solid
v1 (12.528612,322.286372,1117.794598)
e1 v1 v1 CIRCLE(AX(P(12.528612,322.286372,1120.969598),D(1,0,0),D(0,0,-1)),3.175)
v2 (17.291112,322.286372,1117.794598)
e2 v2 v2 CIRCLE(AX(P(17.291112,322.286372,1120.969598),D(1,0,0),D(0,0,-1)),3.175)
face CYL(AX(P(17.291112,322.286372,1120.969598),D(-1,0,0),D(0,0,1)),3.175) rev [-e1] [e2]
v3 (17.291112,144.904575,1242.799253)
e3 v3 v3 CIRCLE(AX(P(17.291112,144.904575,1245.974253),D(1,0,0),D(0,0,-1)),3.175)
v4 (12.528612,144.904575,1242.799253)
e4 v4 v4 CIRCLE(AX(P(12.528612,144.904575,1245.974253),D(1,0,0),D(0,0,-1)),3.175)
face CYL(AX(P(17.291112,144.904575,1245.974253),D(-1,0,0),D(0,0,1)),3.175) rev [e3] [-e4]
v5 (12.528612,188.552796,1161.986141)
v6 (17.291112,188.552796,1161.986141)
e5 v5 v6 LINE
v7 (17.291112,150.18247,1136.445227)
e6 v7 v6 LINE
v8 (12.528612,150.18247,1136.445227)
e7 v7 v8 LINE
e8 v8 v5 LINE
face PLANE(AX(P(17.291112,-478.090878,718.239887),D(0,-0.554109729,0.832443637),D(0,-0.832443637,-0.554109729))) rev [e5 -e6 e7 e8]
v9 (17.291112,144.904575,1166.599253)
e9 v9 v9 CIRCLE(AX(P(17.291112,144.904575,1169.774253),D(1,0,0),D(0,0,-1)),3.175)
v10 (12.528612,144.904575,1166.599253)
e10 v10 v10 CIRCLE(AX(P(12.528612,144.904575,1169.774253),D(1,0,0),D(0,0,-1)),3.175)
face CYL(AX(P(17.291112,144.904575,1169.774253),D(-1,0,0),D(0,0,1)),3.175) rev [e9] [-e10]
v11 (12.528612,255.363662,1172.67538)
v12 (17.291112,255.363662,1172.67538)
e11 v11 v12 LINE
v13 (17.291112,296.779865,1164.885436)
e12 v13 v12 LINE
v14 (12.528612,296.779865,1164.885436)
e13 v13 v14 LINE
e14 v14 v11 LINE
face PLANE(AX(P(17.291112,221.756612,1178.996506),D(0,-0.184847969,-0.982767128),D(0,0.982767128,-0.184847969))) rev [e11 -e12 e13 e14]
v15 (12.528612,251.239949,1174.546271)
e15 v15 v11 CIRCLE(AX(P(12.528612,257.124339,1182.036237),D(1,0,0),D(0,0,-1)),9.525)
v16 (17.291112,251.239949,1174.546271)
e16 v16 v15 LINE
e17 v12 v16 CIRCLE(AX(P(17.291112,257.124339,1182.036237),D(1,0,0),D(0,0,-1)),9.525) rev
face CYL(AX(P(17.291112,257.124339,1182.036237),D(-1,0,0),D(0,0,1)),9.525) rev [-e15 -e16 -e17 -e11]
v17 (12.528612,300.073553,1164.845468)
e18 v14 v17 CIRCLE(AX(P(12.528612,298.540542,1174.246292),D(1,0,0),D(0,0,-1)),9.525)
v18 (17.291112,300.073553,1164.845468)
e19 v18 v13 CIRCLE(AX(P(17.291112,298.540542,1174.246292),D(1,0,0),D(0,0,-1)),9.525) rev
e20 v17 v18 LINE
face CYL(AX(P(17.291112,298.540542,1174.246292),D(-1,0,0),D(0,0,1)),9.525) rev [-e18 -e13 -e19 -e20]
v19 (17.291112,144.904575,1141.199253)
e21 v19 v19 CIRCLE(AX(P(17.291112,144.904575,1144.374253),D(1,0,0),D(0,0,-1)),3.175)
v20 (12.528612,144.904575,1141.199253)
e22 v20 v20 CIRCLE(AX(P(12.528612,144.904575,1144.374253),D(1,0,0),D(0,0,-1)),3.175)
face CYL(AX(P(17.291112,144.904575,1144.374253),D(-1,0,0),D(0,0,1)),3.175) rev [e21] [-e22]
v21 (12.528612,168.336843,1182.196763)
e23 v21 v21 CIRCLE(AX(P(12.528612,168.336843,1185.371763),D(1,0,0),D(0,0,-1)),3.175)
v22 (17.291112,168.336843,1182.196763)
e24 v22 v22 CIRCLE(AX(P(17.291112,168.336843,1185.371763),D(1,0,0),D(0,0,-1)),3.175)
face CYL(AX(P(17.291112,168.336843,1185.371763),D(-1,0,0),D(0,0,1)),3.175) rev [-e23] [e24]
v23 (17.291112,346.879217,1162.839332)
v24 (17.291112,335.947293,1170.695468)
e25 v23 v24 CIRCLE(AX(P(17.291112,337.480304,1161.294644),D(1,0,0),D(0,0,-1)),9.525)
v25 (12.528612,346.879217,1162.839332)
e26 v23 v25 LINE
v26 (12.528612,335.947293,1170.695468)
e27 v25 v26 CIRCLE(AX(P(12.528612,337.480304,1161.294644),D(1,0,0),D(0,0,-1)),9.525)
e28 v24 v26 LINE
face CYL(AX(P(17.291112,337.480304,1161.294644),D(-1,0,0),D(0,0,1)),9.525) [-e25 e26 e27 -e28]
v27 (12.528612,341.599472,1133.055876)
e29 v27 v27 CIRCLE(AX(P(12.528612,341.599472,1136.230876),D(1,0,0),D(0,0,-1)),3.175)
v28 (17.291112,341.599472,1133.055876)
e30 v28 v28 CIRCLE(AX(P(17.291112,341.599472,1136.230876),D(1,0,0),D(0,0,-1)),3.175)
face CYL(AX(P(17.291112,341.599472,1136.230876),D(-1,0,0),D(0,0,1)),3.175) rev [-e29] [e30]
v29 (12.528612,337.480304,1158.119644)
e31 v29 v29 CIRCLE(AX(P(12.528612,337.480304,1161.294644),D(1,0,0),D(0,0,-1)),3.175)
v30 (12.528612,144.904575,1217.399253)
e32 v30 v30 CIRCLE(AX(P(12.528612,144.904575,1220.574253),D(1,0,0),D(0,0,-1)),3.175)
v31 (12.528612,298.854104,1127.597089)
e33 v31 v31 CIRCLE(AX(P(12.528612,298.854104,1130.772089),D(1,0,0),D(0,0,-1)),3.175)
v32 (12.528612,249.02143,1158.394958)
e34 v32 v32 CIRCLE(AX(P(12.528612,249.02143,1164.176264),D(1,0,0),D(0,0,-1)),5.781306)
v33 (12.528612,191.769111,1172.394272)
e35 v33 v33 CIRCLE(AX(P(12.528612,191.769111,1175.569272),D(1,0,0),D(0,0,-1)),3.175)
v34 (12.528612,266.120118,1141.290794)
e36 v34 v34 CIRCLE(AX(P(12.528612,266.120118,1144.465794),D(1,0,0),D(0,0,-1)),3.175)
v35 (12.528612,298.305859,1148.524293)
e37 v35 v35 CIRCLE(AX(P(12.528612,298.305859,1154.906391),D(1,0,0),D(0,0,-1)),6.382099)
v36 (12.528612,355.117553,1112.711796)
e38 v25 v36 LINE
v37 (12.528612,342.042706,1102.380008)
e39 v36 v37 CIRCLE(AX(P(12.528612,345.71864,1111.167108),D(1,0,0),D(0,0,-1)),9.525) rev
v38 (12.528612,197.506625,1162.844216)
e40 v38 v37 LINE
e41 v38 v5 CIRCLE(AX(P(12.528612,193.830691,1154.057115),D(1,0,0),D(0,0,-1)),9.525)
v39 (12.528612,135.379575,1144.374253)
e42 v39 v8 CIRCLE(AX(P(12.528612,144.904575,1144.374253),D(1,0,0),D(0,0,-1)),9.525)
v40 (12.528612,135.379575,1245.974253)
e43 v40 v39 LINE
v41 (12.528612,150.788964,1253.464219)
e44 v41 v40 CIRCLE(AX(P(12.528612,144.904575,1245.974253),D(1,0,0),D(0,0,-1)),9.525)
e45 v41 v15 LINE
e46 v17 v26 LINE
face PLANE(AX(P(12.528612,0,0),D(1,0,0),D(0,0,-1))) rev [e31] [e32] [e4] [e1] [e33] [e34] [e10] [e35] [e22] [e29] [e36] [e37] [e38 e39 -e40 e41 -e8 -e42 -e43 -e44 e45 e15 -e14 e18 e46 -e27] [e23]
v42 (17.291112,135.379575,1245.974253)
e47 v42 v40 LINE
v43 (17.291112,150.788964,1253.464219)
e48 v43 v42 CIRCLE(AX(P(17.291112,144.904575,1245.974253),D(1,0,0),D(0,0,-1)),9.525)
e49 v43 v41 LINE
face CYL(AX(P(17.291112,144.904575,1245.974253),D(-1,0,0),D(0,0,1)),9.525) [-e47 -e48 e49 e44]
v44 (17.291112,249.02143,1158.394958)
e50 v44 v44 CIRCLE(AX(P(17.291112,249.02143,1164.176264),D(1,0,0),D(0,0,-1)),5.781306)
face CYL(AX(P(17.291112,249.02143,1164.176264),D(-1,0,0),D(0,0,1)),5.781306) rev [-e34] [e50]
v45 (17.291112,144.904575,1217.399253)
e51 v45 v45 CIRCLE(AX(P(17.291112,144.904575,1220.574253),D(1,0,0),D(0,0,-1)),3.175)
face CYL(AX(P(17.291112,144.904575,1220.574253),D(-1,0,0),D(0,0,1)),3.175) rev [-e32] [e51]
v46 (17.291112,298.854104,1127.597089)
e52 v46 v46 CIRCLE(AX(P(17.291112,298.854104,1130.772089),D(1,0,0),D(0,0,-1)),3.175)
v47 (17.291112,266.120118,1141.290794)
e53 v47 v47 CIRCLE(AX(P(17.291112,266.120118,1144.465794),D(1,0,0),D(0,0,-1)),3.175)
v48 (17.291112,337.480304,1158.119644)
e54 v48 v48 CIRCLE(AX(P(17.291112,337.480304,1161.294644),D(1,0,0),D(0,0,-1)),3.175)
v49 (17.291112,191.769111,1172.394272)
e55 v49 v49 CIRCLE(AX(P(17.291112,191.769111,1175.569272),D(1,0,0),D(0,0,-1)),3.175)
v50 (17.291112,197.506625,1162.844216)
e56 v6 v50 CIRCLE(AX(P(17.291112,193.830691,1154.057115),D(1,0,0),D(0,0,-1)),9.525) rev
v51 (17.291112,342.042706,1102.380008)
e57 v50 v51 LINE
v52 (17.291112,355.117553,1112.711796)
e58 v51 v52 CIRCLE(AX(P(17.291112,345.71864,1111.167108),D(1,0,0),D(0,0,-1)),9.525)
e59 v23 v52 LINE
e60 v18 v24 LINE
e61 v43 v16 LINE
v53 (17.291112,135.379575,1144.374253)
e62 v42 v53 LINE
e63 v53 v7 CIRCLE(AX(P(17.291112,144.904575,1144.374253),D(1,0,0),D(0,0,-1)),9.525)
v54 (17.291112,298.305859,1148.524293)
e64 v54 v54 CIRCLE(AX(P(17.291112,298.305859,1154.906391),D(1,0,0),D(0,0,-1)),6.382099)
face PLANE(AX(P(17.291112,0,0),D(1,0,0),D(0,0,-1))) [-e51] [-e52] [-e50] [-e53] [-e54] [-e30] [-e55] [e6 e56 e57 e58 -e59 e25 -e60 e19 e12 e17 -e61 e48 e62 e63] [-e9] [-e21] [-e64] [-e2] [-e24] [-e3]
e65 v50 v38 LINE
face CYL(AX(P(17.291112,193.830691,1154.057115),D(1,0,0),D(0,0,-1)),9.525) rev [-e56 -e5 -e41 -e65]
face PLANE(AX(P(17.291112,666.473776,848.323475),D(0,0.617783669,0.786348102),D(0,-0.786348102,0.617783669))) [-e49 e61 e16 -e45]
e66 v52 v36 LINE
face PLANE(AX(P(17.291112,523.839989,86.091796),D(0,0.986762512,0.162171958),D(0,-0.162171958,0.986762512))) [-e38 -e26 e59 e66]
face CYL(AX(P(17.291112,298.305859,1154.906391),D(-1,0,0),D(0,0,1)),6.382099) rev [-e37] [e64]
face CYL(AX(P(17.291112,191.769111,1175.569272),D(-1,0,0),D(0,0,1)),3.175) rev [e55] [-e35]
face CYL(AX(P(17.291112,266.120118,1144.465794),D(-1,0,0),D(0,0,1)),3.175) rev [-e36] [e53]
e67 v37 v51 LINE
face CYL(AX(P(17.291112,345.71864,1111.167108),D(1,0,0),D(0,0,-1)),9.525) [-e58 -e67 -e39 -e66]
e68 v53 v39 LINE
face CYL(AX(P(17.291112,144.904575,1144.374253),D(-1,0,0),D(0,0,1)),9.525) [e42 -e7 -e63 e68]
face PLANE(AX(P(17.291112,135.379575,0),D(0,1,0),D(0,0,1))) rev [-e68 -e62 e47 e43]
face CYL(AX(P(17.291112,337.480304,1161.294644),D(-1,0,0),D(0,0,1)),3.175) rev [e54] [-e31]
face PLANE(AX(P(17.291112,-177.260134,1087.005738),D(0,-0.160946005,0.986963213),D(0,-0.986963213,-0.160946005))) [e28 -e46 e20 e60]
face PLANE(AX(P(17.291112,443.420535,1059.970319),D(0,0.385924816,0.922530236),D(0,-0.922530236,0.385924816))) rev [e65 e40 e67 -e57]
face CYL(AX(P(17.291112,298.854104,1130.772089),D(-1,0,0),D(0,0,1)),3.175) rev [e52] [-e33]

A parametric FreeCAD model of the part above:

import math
import FreeCAD as App
import Part
import Sketcher
from FreeCAD import Vector
Q = App.Units.Quantity


def edges_at(feature, points):
    """Names of the edges that pass closest to the given points."""
    edges = feature.Shape.Edges
    near = lambda p: min(range(len(edges)), key=lambda i: edges[i].distToShape(Part.Vertex(*p))[0])
    return sorted({f"Edge{near(p) + 1}" for p in points})

doc = App.newDocument("Part")
body = doc.addObject("PartDesign::Body", "Body")

# Sketch on YZ plane
sketch1 = doc.addObject("Sketcher::SketchObject", "Sketch")
body.addObject(sketch1)
sketch1.AttachmentSupport = (doc.YZ_Plane, [""])
sketch1.MapMode = "FlatFace"
sketch1.AttachmentOffset = App.Placement(Vector(0, 0, 12.528612), App.Rotation())
sketch1.addGeometry(Part.ArcOfCircle(Part.Circle(Vector(144.9, 1144.4, 0), Vector(0, 0, 1), 9.5), math.radians(180), math.radians(304)), False)
sketch1.addGeometry(Part.LineSegment(Vector(150.2, 1136.4, 0), Vector(192.8, 1164.8, 0)), False)
sketch1.addGeometry(Part.LineSegment(Vector(192.8, 1164.8, 0), Vector(318.6, 1112.2, 0)), False)
sketch1.addGeometry(Part.LineSegment(Vector(318.6, 1112.2, 0), Vector(357.9, 1095.7, 0)), False)
sketch1.addGeometry(Part.LineSegment(Vector(357.9, 1095.7, 0), Vector(351, 1137.8, 0)), False)
sketch1.addGeometry(Part.LineSegment(Vector(351, 1137.8, 0), Vector(346.9, 1162.8, 0)), False)
sketch1.addGeometry(Part.ArcOfCircle(Part.Circle(Vector(337.5, 1161.3, 0), Vector(0, 0, 1), 9.5), math.radians(9), math.radians(99)), False)
sketch1.addGeometry(Part.LineSegment(Vector(335.9, 1170.7, 0), Vector(298.4, 1164.6, 0)), False)
sketch1.addGeometry(Part.LineSegment(Vector(298.4, 1164.6, 0), Vector(253.1, 1173.1, 0)), False)
sketch1.addGeometry(Part.LineSegment(Vector(253.1, 1173.1, 0), Vector(150.8, 1253.5, 0)), False)
sketch1.addGeometry(Part.ArcOfCircle(Part.Circle(Vector(144.9, 1246, 0), Vector(0, 0, 1), 9.5), math.radians(52), math.radians(180)), False)
sketch1.addGeometry(Part.LineSegment(Vector(135.4, 1246, 0), Vector(135.4, 1144.4, 0)), False)
sketch1.addGeometry(Part.Circle(Vector(144.9, 1246, 0), Vector(0, 0, 1), 3.2), False)
sketch1.addGeometry(Part.Circle(Vector(144.9, 1220.6, 0), Vector(0, 0, 1), 3.2), False)
sketch1.addGeometry(Part.Circle(Vector(168.3, 1185.4, 0), Vector(0, 0, 1), 3.2), False)
sketch1.addGeometry(Part.Circle(Vector(144.9, 1169.8, 0), Vector(0, 0, 1), 3.2), False)
sketch1.addGeometry(Part.Circle(Vector(191.8, 1175.6, 0), Vector(0, 0, 1), 3.2), False)
sketch1.addGeometry(Part.Circle(Vector(144.9, 1144.4, 0), Vector(0, 0, 1), 3.2), False)
sketch1.addGeometry(Part.Circle(Vector(249, 1164.2, 0), Vector(0, 0, 1), 5.8), False)
sketch1.addGeometry(Part.Circle(Vector(266.1, 1144.5, 0), Vector(0, 0, 1), 3.2), False)
sketch1.addGeometry(Part.Circle(Vector(298.3, 1154.9, 0), Vector(0, 0, 1), 6.4), False)
sketch1.addGeometry(Part.Circle(Vector(337.5, 1161.3, 0), Vector(0, 0, 1), 3.2), False)
sketch1.addGeometry(Part.Circle(Vector(298.9, 1130.8, 0), Vector(0, 0, 1), 3.2), False)
sketch1.addGeometry(Part.Circle(Vector(341.6, 1136.2, 0), Vector(0, 0, 1), 3.2), False)
sketch1.addGeometry(Part.Circle(Vector(322.3, 1121, 0), Vector(0, 0, 1), 3.2), False)
sketch1.addConstraint(Sketcher.Constraint("Tangent", 0, 2, 1, 1))
sketch1.addConstraint(Sketcher.Constraint("Coincident", 1, 2, 2, 1))
sketch1.addConstraint(Sketcher.Constraint("Coincident", 2, 2, 3, 1))
sketch1.addConstraint(Sketcher.Constraint("Coincident", 3, 2, 4, 1))
sketch1.addConstraint(Sketcher.Constraint("Coincident", 4, 2, 5, 1))
sketch1.addConstraint(Sketcher.Constraint("Tangent", 5, 2, 6, 1))
sketch1.addConstraint(Sketcher.Constraint("Tangent", 6, 2, 7, 1))
sketch1.addConstraint(Sketcher.Constraint("Coincident", 7, 2, 8, 1))
sketch1.addConstraint(Sketcher.Constraint("Coincident", 8, 2, 9, 1))
sketch1.addConstraint(Sketcher.Constraint("Tangent", 9, 2, 10, 1))
sketch1.addConstraint(Sketcher.Constraint("Tangent", 10, 2, 11, 1))
sketch1.addConstraint(Sketcher.Constraint("Tangent", 11, 2, 0, 1))
sketch1.addConstraint(Sketcher.Constraint("Vertical", 11))
sketch1.addConstraint(Sketcher.Constraint("Coincident", 12, 3, 10, 3))
sketch1.addConstraint(Sketcher.Constraint("Coincident", 17, 3, 0, 3))
sketch1.addConstraint(Sketcher.Constraint("Coincident", 21, 3, 6, 3))
sketch1.addConstraint(Sketcher.Constraint("Equal", 0, 6))
sketch1.addConstraint(Sketcher.Constraint("Equal", 6, 10))
sketch1.addConstraint(Sketcher.Constraint("Equal", 12, 13))
sketch1.addConstraint(Sketcher.Constraint("Equal", 13, 14))
sketch1.addConstraint(Sketcher.Constraint("Equal", 14, 15))
sketch1.addConstraint(Sketcher.Constraint("Equal", 15, 16))
sketch1.addConstraint(Sketcher.Constraint("Equal", 16, 17))
sketch1.addConstraint(Sketcher.Constraint("Equal", 17, 19))
sketch1.addConstraint(Sketcher.Constraint("Equal", 19, 21))
sketch1.addConstraint(Sketcher.Constraint("Equal", 21, 22))
sketch1.addConstraint(Sketcher.Constraint("Equal", 22, 23))
sketch1.addConstraint(Sketcher.Constraint("Equal", 23, 24))
sketch1.addConstraint(Sketcher.Constraint("Parallel", 2, 3))
sketch1.addConstraint(Sketcher.Constraint("Parallel", 4, 5))
sketch1.addConstraint(Sketcher.Constraint("Vertical", 12, 3, 13, 3))
sketch1.addConstraint(Sketcher.Constraint("Vertical", 13, 3, 15, 3))
sketch1.addConstraint(Sketcher.Constraint("Equal", 3, 4))
sketch1.addConstraint(Sketcher.Constraint("Diameter", 12, Q("0.25 in")))
sketch1.addConstraint(Sketcher.Constraint("DistanceY", 11, 2, 11, 1, Q("4 in")))
sketch1.addConstraint(Sketcher.Constraint("Distance", 5, Q("1 in")))
sketch1.addConstraint(Sketcher.Constraint("Radius", 0, Q("0.375 in")))
sketch1.addConstraint(Sketcher.Constraint("DistanceY", 13, 3, 10, 3, Q("1 in")))
sketch1.addConstraint(Sketcher.Constraint("DistanceY", 0, 3, 15, 3, Q("1 in")))
sketch1.addConstraint(Sketcher.Constraint("Diameter", 18, 11.562612))
sketch1.addConstraint(Sketcher.Constraint("Diameter", 20, 12.764197))
sketch1.addConstraint(Sketcher.Constraint("DistanceY", -1, 1, 24, 3, 1120.969598))
sketch1.addConstraint(Sketcher.Constraint("DistanceX", -1, 1, 1, 2, 192.799901))
sketch1.addConstraint(Sketcher.Constraint("DistanceX", -1, 1, 7, 2, 298.423201))
sketch1.addConstraint(Sketcher.Constraint("DistanceY", 18, 3, 14, 3, 21.195498))
sketch1.addConstraint(Sketcher.Constraint("DistanceX", 22, 3, 21, 3, 38.626201))
sketch1.addConstraint(Sketcher.Constraint("DistanceX", 24, 3, 23, 3, 19.3131))
sketch1.addConstraint(Sketcher.Constraint("DistanceY", 2, 2, 24, 3, 8.7871))
sketch1.addConstraint(Sketcher.Constraint("DistanceX", 21, 3, 3, 2, 20.425899))
sketch1.addConstraint(Sketcher.Constraint("DistanceY", 21, 3, 7, 2, 3.281698))
sketch1.addConstraint(Sketcher.Constraint("Distance", 3, 42.595639))
sketch1.addConstraint(Sketcher.Constraint("Distance", 7, 38.019748))
sketch1.addConstraint(Sketcher.Constraint("DistanceX", -1, 1, 16, 3, 191.769111))
sketch1.addConstraint(Sketcher.Constraint("DistanceX", -1, 1, 18, 3, 249.02143))
sketch1.addConstraint(Sketcher.Constraint("DistanceX", -1, 1, 19, 3, 266.120118))
sketch1.addConstraint(Sketcher.Constraint("DistanceX", -1, 1, 20, 3, 298.305859))
sketch1.addConstraint(Sketcher.Constraint("DistanceY", -1, 1, 20, 3, 1154.906391))
sketch1.addConstraint(Sketcher.Constraint("DistanceY", -1, 1, 22, 3, 1130.772089))
sketch1.addConstraint(Sketcher.Constraint("DistanceX", -1, 1, 23, 3, 341.599472))
sketch1.addConstraint(Sketcher.Constraint("DistanceX", -1, 1, 0, 2, 150.18247))
sketch1.addConstraint(Sketcher.Constraint("DistanceY", -1, 1, 5, 2, 1162.839332))
sketch1.addConstraint(Sketcher.Constraint("DistanceY", -1, 1, 8, 2, 1173.10625))
sketch1.addConstraint(Sketcher.Constraint("DistanceY", -1, 1, 9, 2, 1253.464219))
sketch1.addConstraint(Sketcher.Constraint("DistanceY", 0, 3, 6, 3, 16.920391))
sketch1.addConstraint(Sketcher.Constraint("DistanceY", 14, 3, 13, 3, 35.20249))
sketch1.addConstraint(Sketcher.Constraint("DistanceX", 14, 3, 6, 3, 169.143462))
sketch1.addConstraint(Sketcher.Constraint("DistanceY", 16, 3, 14, 3, 9.80249))
sketch1.addConstraint(Sketcher.Constraint("DistanceY", 19, 3, 18, 3, 19.71047))
sketch1.addConstraint(Sketcher.Constraint("DistanceY", 23, 3, 19, 3, 8.234918))
pad1 = doc.addObject("PartDesign::Pad", "Pad")
body.addObject(pad1)
pad1.Profile = sketch1
pad1.Length = Q("0.1875 in")
doc.recompute()

fillet = doc.addObject("PartDesign::Fillet", "Fillet")
body.addObject(fillet)
fillet.Base = (pad1, edges_at(pad1, [
    (14.91, 357.906, 1095.744),
    (14.91, 192.8, 1164.813),
    (14.91, 253.073, 1173.106),
    (14.91, 298.423, 1164.576),
]))
fillet.Radius = Q("0.375 in")

doc.recompute()
